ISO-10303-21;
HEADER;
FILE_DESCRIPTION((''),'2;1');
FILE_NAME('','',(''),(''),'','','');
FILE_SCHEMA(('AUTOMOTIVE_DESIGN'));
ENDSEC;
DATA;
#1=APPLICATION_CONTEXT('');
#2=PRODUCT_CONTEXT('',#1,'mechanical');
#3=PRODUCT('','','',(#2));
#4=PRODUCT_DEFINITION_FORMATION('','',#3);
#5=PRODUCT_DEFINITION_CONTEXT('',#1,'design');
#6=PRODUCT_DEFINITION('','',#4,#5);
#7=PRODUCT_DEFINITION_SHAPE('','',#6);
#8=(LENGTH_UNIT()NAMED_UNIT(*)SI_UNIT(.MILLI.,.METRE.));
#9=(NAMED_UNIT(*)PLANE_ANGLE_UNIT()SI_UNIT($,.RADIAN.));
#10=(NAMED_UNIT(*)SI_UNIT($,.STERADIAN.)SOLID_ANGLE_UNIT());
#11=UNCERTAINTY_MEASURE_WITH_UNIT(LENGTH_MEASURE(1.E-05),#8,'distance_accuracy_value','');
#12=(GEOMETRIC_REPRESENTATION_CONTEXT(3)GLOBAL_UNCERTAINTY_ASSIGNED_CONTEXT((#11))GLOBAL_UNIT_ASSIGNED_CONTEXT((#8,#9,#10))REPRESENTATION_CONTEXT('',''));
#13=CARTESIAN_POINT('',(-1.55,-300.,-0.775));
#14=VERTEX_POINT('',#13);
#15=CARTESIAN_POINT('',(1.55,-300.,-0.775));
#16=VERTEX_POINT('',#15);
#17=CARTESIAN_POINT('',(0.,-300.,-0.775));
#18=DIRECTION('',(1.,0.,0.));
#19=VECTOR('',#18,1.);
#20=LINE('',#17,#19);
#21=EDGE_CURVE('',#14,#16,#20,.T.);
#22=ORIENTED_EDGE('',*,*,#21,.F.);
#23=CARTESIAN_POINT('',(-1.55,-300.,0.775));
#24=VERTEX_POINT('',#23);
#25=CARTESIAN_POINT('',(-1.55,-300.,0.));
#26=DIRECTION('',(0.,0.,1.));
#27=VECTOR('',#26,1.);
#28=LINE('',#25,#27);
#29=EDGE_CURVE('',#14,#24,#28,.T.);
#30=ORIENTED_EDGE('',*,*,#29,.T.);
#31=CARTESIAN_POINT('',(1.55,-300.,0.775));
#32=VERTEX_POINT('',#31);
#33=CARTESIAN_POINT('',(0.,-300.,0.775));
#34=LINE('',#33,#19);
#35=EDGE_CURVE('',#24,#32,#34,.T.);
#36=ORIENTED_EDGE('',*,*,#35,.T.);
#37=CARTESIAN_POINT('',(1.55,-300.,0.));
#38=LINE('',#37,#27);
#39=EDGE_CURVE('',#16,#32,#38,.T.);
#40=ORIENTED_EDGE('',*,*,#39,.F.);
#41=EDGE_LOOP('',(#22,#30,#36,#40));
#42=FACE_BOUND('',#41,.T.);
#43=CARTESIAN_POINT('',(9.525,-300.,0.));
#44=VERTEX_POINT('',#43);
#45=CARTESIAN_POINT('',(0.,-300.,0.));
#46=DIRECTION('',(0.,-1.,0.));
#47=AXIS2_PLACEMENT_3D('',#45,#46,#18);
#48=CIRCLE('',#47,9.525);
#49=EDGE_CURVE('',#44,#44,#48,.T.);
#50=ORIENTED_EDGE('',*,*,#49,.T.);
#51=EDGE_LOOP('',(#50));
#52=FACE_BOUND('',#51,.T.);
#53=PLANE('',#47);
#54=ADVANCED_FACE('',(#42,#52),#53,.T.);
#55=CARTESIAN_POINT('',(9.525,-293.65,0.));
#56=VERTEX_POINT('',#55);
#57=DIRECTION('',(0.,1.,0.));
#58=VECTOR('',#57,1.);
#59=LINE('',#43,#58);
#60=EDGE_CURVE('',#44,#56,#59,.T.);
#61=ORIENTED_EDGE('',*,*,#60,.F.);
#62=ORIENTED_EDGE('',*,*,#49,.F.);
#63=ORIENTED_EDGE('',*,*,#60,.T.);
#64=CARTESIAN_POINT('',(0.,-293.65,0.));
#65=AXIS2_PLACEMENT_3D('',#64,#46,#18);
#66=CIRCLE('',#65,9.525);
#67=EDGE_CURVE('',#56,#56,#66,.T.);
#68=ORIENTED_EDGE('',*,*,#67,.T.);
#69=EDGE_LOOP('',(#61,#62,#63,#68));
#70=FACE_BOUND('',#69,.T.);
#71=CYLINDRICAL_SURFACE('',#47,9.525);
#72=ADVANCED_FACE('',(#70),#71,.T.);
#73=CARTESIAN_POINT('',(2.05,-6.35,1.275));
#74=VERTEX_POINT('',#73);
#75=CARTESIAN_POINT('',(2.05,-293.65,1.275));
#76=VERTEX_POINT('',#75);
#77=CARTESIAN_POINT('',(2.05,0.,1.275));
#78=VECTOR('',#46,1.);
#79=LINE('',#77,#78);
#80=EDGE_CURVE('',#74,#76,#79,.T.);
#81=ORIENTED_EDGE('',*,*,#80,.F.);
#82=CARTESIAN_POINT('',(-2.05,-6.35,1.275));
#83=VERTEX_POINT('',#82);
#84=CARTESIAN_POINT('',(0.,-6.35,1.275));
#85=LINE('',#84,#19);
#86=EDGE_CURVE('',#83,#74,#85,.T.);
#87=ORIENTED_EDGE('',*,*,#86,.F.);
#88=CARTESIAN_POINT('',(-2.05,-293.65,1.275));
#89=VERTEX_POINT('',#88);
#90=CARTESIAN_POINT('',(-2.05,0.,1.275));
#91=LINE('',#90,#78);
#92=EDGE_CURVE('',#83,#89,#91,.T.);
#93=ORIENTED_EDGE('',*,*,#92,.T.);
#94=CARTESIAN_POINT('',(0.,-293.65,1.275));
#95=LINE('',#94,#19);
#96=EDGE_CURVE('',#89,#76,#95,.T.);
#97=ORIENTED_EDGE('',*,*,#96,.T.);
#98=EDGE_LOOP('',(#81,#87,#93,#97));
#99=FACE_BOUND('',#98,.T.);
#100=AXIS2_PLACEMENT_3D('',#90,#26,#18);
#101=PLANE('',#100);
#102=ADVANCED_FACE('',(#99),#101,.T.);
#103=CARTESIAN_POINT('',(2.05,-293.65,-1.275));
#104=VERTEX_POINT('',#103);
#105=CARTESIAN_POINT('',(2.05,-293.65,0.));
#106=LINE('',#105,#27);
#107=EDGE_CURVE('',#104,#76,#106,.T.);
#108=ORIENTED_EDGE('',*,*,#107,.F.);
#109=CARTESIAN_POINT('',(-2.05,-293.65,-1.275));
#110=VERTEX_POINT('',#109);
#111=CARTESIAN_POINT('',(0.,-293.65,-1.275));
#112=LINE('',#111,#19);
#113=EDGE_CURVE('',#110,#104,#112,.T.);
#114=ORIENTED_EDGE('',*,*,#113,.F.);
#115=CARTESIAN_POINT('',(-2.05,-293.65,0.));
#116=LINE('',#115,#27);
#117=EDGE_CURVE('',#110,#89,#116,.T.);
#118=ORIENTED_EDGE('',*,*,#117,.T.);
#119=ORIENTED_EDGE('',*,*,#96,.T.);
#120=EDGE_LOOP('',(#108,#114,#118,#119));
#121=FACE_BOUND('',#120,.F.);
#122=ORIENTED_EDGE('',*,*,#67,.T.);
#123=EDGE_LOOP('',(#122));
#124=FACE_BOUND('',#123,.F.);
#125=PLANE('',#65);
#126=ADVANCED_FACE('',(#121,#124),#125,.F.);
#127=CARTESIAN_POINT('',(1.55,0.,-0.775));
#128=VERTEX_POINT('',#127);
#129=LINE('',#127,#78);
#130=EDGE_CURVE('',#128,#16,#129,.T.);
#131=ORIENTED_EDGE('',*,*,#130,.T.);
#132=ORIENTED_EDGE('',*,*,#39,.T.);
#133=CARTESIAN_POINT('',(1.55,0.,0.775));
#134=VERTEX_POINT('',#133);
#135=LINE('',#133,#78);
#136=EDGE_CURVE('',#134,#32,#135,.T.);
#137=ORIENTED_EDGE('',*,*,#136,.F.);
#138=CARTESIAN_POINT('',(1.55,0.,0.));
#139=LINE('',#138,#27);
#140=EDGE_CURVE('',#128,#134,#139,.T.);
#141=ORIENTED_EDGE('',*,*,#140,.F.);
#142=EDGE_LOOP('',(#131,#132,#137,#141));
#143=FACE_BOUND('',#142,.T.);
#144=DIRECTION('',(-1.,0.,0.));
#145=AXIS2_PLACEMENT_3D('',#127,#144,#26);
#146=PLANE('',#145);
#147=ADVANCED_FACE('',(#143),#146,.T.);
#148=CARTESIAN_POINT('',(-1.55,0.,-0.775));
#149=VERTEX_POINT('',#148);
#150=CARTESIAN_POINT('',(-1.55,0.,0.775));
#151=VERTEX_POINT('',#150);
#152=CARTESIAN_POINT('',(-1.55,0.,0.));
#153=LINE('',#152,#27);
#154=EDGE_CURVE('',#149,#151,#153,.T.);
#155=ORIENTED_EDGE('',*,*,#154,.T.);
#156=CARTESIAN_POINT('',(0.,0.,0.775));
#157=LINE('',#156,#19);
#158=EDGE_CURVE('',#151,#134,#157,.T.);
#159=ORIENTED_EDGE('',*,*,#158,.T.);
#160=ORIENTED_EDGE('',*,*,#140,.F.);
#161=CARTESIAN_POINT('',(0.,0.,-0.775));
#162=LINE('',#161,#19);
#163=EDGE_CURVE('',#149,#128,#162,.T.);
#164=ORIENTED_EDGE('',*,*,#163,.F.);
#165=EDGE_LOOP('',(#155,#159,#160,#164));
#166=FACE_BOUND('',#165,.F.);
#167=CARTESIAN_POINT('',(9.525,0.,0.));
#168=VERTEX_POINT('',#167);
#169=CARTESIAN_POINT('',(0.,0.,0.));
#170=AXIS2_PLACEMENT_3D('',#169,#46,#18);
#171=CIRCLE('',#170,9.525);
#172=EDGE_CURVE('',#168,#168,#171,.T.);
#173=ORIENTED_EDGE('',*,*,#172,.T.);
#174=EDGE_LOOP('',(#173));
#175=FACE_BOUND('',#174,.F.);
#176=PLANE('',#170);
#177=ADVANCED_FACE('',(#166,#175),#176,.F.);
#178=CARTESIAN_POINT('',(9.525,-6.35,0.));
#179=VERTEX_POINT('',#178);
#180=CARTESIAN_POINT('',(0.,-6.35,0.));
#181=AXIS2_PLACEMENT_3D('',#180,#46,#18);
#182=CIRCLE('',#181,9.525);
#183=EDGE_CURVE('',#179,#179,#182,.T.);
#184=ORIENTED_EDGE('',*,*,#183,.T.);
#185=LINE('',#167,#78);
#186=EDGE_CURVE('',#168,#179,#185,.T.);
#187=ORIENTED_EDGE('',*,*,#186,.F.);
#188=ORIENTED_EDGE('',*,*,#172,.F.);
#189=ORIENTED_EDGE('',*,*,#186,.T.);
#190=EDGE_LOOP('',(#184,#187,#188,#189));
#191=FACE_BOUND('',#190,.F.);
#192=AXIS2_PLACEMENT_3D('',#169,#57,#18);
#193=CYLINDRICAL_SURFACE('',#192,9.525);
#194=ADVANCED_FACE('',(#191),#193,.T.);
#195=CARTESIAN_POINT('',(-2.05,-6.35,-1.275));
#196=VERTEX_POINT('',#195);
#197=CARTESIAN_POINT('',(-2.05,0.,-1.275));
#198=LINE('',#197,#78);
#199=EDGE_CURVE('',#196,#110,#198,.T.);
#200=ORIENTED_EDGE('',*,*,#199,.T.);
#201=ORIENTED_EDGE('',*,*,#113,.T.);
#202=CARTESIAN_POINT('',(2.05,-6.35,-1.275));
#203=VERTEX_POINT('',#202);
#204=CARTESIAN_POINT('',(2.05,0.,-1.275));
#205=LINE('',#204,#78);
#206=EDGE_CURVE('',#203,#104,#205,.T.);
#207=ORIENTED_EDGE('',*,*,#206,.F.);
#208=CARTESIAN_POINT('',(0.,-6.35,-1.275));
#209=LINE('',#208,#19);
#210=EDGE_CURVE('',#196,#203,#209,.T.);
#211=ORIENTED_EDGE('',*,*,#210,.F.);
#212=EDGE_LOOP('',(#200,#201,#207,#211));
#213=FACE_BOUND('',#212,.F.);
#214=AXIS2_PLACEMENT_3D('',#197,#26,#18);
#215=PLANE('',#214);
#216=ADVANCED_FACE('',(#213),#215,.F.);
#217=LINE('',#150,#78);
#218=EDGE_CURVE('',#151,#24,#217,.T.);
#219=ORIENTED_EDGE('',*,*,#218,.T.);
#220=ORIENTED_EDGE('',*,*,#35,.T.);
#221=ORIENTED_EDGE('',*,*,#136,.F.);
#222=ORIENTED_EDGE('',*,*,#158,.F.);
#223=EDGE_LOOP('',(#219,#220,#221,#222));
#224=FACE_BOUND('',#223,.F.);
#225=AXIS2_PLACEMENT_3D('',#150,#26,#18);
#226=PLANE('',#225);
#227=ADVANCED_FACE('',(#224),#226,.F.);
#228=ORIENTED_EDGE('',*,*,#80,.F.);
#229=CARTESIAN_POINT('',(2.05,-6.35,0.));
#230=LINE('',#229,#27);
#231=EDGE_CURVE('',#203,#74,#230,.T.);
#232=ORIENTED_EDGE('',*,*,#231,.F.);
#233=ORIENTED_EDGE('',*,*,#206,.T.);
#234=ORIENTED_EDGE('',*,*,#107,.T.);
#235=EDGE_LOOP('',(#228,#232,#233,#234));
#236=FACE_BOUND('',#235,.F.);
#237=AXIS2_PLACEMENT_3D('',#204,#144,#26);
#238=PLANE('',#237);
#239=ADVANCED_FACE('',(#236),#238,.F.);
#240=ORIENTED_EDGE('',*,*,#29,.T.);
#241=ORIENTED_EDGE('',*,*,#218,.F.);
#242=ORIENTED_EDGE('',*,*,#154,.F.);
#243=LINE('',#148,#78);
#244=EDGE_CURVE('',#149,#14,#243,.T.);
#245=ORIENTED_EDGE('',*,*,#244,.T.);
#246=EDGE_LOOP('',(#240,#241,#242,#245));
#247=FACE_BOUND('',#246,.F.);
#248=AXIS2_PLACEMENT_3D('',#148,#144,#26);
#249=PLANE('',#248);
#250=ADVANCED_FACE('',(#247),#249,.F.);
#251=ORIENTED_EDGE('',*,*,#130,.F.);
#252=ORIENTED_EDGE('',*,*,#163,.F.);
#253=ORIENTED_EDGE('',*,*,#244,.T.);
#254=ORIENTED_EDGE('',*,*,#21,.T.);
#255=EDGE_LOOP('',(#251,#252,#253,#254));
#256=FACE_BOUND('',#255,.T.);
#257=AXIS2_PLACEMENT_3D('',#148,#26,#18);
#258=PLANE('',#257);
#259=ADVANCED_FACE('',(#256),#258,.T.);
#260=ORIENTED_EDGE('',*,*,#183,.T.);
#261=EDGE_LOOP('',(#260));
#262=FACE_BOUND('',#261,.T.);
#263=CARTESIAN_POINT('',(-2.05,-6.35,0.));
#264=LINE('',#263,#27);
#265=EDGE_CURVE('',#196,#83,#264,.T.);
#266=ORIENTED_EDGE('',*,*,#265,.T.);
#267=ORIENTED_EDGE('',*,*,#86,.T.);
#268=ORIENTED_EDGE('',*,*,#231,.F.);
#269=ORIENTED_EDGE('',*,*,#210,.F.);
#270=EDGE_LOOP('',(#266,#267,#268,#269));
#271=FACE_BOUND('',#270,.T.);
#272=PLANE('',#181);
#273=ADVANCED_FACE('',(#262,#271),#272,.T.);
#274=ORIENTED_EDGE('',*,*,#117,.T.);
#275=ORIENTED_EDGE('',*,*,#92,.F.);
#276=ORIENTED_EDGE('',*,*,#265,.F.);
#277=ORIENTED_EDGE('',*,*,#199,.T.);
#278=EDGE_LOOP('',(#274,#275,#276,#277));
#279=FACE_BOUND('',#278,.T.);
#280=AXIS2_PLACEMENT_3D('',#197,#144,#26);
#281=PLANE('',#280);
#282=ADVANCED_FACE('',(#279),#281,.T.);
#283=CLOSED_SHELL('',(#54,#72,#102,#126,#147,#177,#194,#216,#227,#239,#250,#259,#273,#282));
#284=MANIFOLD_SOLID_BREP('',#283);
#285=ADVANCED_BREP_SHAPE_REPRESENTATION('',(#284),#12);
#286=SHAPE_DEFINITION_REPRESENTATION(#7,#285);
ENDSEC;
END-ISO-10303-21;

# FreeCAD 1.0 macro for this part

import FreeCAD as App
import Part
import Sketcher
from FreeCAD import Vector
Q = App.Units.Quantity


def add_polygon(sketch, points):
    """Adds a closed chain of lines whose ends are joined by coincident constraints."""
    first, n = sketch.GeometryCount, len(points)
    for a, b in zip(points, points[1:] + points[:1]):
        sketch.addGeometry(Part.LineSegment(App.Vector(*a, 0), App.Vector(*b, 0)), False)
    for i in range(n):
        sketch.addConstraint(Sketcher.Constraint("Coincident", first + i, 2, first + (i + 1) % n, 1))

doc = App.newDocument("Part")
body = doc.addObject("PartDesign::Body", "Body")

# Sketch on XZ plane
sketch1 = doc.addObject("Sketcher::SketchObject", "Sketch")
body.addObject(sketch1)
sketch1.AttachmentSupport = (doc.XZ_Plane, [""])
sketch1.MapMode = "FlatFace"
add_polygon(sketch1, [(-2, 1.3), (-2, -1.3), (2, -1.3), (2, 1.3)])  # lines 0-3
add_polygon(sketch1, [(1.6, -0.8), (-1.6, -0.8), (-1.6, 0.8), (1.6, 0.8)])  # lines 4-7
sketch1.addConstraint(Sketcher.Constraint("Vertical", 0))
sketch1.addConstraint(Sketcher.Constraint("Horizontal", 1))
sketch1.addConstraint(Sketcher.Constraint("Vertical", 2))
sketch1.addConstraint(Sketcher.Constraint("Horizontal", 3))
sketch1.addConstraint(Sketcher.Constraint("Horizontal", 4))
sketch1.addConstraint(Sketcher.Constraint("Vertical", 5))
sketch1.addConstraint(Sketcher.Constraint("Horizontal", 6))
sketch1.addConstraint(Sketcher.Constraint("Vertical", 7))
sketch1.addConstraint(Sketcher.Constraint("Symmetric", 0, 2, 2, 2, -1, 1))
sketch1.addConstraint(Sketcher.Constraint("Symmetric", 4, 2, 6, 2, -1, 1))
sketch1.addConstraint(Sketcher.Constraint("DistanceX", 1, 1, 1, 2, Q("4.1 mm")))
sketch1.addConstraint(Sketcher.Constraint("DistanceX", 4, 2, 4, 1, Q("3.1 mm")))
sketch1.addConstraint(Sketcher.Constraint("DistanceY", 0, 2, 0, 1, Q("2.55 mm")))
sketch1.addConstraint(Sketcher.Constraint("DistanceY", 5, 1, 5, 2, Q("1.55 mm")))
pad1 = doc.addObject("PartDesign::Pad", "Pad")
body.addObject(pad1)
pad1.Profile = sketch1
pad1.Length = 300

# Sketch on XZ plane
sketch2 = doc.addObject("Sketcher::SketchObject", "Sketch001")
body.addObject(sketch2)
sketch2.AttachmentSupport = (doc.XZ_Plane, [""])
sketch2.MapMode = "FlatFace"
sketch2.AttachmentOffset = App.Placement(Vector(0, 0, 300), App.Rotation())
sketch2.addGeometry(Part.Circle(Vector(0, 0, 0), Vector(0, 0, 1), 9.5), False)  # 0
add_polygon(sketch2, [(2, -1.3), (-2, -1.3), (-2, 1.3), (2, 1.3)])  # lines 1-4
sketch2.addConstraint(Sketcher.Constraint("Horizontal", 1))
sketch2.addConstraint(Sketcher.Constraint("Vertical", 2))
sketch2.addConstraint(Sketcher.Constraint("Horizontal", 3))
sketch2.addConstraint(Sketcher.Constraint("Vertical", 4))
sketch2.addConstraint(Sketcher.Constraint("Coincident", 0, 3, -1, 1))
sketch2.addConstraint(Sketcher.Constraint("Symmetric", 1, 2, 3, 2, -1, 1))
sketch2.addConstraint(Sketcher.Constraint("Diameter", 0, Q("19.05 mm")))
sketch2.addConstraint(Sketcher.Constraint("DistanceX", 1, 2, 1, 1, Q("4.1 mm")))
sketch2.addConstraint(Sketcher.Constraint("DistanceY", 2, 1, 2, 2, Q("2.55 mm")))
pad2 = doc.addObject("PartDesign::Pad", "Pad001")
body.addObject(pad2)
pad2.Profile = sketch2
pad2.Length = 6.35
pad2.Reversed = True

# Sketch on XZ plane
sketch3 = doc.addObject("Sketcher::SketchObject", "Sketch002")
body.addObject(sketch3)
sketch3.AttachmentSupport = (doc.XZ_Plane, [""])
sketch3.MapMode = "FlatFace"
sketch3.addGeometry(Part.Circle(Vector(0, 0, 0), Vector(0, 0, 1), 9.5), False)  # 0
add_polygon(sketch3, [(2, -1.3), (-2, -1.3), (-2, 1.3), (2, 1.3)])  # lines 1-4
sketch3.addConstraint(Sketcher.Constraint("Horizontal", 1))
sketch3.addConstraint(Sketcher.Constraint("Vertical", 2))
sketch3.addConstraint(Sketcher.Constraint("Horizontal", 3))
sketch3.addConstraint(Sketcher.Constraint("Vertical", 4))
sketch3.addConstraint(Sketcher.Constraint("Coincident", 0, 3, -1, 1))
sketch3.addConstraint(Sketcher.Constraint("Symmetric", 1, 2, 3, 2, -1, 1))
sketch3.addConstraint(Sketcher.Constraint("Diameter", 0, Q("19.05 mm")))
sketch3.addConstraint(Sketcher.Constraint("DistanceX", 1, 2, 1, 1, Q("4.1 mm")))
sketch3.addConstraint(Sketcher.Constraint("DistanceY", 2, 1, 2, 2, Q("2.55 mm")))
pad3 = doc.addObject("PartDesign::Pad", "Pad002")
body.addObject(pad3)
pad3.Profile = sketch3
pad3.Length = 6.35

doc.recompute()
